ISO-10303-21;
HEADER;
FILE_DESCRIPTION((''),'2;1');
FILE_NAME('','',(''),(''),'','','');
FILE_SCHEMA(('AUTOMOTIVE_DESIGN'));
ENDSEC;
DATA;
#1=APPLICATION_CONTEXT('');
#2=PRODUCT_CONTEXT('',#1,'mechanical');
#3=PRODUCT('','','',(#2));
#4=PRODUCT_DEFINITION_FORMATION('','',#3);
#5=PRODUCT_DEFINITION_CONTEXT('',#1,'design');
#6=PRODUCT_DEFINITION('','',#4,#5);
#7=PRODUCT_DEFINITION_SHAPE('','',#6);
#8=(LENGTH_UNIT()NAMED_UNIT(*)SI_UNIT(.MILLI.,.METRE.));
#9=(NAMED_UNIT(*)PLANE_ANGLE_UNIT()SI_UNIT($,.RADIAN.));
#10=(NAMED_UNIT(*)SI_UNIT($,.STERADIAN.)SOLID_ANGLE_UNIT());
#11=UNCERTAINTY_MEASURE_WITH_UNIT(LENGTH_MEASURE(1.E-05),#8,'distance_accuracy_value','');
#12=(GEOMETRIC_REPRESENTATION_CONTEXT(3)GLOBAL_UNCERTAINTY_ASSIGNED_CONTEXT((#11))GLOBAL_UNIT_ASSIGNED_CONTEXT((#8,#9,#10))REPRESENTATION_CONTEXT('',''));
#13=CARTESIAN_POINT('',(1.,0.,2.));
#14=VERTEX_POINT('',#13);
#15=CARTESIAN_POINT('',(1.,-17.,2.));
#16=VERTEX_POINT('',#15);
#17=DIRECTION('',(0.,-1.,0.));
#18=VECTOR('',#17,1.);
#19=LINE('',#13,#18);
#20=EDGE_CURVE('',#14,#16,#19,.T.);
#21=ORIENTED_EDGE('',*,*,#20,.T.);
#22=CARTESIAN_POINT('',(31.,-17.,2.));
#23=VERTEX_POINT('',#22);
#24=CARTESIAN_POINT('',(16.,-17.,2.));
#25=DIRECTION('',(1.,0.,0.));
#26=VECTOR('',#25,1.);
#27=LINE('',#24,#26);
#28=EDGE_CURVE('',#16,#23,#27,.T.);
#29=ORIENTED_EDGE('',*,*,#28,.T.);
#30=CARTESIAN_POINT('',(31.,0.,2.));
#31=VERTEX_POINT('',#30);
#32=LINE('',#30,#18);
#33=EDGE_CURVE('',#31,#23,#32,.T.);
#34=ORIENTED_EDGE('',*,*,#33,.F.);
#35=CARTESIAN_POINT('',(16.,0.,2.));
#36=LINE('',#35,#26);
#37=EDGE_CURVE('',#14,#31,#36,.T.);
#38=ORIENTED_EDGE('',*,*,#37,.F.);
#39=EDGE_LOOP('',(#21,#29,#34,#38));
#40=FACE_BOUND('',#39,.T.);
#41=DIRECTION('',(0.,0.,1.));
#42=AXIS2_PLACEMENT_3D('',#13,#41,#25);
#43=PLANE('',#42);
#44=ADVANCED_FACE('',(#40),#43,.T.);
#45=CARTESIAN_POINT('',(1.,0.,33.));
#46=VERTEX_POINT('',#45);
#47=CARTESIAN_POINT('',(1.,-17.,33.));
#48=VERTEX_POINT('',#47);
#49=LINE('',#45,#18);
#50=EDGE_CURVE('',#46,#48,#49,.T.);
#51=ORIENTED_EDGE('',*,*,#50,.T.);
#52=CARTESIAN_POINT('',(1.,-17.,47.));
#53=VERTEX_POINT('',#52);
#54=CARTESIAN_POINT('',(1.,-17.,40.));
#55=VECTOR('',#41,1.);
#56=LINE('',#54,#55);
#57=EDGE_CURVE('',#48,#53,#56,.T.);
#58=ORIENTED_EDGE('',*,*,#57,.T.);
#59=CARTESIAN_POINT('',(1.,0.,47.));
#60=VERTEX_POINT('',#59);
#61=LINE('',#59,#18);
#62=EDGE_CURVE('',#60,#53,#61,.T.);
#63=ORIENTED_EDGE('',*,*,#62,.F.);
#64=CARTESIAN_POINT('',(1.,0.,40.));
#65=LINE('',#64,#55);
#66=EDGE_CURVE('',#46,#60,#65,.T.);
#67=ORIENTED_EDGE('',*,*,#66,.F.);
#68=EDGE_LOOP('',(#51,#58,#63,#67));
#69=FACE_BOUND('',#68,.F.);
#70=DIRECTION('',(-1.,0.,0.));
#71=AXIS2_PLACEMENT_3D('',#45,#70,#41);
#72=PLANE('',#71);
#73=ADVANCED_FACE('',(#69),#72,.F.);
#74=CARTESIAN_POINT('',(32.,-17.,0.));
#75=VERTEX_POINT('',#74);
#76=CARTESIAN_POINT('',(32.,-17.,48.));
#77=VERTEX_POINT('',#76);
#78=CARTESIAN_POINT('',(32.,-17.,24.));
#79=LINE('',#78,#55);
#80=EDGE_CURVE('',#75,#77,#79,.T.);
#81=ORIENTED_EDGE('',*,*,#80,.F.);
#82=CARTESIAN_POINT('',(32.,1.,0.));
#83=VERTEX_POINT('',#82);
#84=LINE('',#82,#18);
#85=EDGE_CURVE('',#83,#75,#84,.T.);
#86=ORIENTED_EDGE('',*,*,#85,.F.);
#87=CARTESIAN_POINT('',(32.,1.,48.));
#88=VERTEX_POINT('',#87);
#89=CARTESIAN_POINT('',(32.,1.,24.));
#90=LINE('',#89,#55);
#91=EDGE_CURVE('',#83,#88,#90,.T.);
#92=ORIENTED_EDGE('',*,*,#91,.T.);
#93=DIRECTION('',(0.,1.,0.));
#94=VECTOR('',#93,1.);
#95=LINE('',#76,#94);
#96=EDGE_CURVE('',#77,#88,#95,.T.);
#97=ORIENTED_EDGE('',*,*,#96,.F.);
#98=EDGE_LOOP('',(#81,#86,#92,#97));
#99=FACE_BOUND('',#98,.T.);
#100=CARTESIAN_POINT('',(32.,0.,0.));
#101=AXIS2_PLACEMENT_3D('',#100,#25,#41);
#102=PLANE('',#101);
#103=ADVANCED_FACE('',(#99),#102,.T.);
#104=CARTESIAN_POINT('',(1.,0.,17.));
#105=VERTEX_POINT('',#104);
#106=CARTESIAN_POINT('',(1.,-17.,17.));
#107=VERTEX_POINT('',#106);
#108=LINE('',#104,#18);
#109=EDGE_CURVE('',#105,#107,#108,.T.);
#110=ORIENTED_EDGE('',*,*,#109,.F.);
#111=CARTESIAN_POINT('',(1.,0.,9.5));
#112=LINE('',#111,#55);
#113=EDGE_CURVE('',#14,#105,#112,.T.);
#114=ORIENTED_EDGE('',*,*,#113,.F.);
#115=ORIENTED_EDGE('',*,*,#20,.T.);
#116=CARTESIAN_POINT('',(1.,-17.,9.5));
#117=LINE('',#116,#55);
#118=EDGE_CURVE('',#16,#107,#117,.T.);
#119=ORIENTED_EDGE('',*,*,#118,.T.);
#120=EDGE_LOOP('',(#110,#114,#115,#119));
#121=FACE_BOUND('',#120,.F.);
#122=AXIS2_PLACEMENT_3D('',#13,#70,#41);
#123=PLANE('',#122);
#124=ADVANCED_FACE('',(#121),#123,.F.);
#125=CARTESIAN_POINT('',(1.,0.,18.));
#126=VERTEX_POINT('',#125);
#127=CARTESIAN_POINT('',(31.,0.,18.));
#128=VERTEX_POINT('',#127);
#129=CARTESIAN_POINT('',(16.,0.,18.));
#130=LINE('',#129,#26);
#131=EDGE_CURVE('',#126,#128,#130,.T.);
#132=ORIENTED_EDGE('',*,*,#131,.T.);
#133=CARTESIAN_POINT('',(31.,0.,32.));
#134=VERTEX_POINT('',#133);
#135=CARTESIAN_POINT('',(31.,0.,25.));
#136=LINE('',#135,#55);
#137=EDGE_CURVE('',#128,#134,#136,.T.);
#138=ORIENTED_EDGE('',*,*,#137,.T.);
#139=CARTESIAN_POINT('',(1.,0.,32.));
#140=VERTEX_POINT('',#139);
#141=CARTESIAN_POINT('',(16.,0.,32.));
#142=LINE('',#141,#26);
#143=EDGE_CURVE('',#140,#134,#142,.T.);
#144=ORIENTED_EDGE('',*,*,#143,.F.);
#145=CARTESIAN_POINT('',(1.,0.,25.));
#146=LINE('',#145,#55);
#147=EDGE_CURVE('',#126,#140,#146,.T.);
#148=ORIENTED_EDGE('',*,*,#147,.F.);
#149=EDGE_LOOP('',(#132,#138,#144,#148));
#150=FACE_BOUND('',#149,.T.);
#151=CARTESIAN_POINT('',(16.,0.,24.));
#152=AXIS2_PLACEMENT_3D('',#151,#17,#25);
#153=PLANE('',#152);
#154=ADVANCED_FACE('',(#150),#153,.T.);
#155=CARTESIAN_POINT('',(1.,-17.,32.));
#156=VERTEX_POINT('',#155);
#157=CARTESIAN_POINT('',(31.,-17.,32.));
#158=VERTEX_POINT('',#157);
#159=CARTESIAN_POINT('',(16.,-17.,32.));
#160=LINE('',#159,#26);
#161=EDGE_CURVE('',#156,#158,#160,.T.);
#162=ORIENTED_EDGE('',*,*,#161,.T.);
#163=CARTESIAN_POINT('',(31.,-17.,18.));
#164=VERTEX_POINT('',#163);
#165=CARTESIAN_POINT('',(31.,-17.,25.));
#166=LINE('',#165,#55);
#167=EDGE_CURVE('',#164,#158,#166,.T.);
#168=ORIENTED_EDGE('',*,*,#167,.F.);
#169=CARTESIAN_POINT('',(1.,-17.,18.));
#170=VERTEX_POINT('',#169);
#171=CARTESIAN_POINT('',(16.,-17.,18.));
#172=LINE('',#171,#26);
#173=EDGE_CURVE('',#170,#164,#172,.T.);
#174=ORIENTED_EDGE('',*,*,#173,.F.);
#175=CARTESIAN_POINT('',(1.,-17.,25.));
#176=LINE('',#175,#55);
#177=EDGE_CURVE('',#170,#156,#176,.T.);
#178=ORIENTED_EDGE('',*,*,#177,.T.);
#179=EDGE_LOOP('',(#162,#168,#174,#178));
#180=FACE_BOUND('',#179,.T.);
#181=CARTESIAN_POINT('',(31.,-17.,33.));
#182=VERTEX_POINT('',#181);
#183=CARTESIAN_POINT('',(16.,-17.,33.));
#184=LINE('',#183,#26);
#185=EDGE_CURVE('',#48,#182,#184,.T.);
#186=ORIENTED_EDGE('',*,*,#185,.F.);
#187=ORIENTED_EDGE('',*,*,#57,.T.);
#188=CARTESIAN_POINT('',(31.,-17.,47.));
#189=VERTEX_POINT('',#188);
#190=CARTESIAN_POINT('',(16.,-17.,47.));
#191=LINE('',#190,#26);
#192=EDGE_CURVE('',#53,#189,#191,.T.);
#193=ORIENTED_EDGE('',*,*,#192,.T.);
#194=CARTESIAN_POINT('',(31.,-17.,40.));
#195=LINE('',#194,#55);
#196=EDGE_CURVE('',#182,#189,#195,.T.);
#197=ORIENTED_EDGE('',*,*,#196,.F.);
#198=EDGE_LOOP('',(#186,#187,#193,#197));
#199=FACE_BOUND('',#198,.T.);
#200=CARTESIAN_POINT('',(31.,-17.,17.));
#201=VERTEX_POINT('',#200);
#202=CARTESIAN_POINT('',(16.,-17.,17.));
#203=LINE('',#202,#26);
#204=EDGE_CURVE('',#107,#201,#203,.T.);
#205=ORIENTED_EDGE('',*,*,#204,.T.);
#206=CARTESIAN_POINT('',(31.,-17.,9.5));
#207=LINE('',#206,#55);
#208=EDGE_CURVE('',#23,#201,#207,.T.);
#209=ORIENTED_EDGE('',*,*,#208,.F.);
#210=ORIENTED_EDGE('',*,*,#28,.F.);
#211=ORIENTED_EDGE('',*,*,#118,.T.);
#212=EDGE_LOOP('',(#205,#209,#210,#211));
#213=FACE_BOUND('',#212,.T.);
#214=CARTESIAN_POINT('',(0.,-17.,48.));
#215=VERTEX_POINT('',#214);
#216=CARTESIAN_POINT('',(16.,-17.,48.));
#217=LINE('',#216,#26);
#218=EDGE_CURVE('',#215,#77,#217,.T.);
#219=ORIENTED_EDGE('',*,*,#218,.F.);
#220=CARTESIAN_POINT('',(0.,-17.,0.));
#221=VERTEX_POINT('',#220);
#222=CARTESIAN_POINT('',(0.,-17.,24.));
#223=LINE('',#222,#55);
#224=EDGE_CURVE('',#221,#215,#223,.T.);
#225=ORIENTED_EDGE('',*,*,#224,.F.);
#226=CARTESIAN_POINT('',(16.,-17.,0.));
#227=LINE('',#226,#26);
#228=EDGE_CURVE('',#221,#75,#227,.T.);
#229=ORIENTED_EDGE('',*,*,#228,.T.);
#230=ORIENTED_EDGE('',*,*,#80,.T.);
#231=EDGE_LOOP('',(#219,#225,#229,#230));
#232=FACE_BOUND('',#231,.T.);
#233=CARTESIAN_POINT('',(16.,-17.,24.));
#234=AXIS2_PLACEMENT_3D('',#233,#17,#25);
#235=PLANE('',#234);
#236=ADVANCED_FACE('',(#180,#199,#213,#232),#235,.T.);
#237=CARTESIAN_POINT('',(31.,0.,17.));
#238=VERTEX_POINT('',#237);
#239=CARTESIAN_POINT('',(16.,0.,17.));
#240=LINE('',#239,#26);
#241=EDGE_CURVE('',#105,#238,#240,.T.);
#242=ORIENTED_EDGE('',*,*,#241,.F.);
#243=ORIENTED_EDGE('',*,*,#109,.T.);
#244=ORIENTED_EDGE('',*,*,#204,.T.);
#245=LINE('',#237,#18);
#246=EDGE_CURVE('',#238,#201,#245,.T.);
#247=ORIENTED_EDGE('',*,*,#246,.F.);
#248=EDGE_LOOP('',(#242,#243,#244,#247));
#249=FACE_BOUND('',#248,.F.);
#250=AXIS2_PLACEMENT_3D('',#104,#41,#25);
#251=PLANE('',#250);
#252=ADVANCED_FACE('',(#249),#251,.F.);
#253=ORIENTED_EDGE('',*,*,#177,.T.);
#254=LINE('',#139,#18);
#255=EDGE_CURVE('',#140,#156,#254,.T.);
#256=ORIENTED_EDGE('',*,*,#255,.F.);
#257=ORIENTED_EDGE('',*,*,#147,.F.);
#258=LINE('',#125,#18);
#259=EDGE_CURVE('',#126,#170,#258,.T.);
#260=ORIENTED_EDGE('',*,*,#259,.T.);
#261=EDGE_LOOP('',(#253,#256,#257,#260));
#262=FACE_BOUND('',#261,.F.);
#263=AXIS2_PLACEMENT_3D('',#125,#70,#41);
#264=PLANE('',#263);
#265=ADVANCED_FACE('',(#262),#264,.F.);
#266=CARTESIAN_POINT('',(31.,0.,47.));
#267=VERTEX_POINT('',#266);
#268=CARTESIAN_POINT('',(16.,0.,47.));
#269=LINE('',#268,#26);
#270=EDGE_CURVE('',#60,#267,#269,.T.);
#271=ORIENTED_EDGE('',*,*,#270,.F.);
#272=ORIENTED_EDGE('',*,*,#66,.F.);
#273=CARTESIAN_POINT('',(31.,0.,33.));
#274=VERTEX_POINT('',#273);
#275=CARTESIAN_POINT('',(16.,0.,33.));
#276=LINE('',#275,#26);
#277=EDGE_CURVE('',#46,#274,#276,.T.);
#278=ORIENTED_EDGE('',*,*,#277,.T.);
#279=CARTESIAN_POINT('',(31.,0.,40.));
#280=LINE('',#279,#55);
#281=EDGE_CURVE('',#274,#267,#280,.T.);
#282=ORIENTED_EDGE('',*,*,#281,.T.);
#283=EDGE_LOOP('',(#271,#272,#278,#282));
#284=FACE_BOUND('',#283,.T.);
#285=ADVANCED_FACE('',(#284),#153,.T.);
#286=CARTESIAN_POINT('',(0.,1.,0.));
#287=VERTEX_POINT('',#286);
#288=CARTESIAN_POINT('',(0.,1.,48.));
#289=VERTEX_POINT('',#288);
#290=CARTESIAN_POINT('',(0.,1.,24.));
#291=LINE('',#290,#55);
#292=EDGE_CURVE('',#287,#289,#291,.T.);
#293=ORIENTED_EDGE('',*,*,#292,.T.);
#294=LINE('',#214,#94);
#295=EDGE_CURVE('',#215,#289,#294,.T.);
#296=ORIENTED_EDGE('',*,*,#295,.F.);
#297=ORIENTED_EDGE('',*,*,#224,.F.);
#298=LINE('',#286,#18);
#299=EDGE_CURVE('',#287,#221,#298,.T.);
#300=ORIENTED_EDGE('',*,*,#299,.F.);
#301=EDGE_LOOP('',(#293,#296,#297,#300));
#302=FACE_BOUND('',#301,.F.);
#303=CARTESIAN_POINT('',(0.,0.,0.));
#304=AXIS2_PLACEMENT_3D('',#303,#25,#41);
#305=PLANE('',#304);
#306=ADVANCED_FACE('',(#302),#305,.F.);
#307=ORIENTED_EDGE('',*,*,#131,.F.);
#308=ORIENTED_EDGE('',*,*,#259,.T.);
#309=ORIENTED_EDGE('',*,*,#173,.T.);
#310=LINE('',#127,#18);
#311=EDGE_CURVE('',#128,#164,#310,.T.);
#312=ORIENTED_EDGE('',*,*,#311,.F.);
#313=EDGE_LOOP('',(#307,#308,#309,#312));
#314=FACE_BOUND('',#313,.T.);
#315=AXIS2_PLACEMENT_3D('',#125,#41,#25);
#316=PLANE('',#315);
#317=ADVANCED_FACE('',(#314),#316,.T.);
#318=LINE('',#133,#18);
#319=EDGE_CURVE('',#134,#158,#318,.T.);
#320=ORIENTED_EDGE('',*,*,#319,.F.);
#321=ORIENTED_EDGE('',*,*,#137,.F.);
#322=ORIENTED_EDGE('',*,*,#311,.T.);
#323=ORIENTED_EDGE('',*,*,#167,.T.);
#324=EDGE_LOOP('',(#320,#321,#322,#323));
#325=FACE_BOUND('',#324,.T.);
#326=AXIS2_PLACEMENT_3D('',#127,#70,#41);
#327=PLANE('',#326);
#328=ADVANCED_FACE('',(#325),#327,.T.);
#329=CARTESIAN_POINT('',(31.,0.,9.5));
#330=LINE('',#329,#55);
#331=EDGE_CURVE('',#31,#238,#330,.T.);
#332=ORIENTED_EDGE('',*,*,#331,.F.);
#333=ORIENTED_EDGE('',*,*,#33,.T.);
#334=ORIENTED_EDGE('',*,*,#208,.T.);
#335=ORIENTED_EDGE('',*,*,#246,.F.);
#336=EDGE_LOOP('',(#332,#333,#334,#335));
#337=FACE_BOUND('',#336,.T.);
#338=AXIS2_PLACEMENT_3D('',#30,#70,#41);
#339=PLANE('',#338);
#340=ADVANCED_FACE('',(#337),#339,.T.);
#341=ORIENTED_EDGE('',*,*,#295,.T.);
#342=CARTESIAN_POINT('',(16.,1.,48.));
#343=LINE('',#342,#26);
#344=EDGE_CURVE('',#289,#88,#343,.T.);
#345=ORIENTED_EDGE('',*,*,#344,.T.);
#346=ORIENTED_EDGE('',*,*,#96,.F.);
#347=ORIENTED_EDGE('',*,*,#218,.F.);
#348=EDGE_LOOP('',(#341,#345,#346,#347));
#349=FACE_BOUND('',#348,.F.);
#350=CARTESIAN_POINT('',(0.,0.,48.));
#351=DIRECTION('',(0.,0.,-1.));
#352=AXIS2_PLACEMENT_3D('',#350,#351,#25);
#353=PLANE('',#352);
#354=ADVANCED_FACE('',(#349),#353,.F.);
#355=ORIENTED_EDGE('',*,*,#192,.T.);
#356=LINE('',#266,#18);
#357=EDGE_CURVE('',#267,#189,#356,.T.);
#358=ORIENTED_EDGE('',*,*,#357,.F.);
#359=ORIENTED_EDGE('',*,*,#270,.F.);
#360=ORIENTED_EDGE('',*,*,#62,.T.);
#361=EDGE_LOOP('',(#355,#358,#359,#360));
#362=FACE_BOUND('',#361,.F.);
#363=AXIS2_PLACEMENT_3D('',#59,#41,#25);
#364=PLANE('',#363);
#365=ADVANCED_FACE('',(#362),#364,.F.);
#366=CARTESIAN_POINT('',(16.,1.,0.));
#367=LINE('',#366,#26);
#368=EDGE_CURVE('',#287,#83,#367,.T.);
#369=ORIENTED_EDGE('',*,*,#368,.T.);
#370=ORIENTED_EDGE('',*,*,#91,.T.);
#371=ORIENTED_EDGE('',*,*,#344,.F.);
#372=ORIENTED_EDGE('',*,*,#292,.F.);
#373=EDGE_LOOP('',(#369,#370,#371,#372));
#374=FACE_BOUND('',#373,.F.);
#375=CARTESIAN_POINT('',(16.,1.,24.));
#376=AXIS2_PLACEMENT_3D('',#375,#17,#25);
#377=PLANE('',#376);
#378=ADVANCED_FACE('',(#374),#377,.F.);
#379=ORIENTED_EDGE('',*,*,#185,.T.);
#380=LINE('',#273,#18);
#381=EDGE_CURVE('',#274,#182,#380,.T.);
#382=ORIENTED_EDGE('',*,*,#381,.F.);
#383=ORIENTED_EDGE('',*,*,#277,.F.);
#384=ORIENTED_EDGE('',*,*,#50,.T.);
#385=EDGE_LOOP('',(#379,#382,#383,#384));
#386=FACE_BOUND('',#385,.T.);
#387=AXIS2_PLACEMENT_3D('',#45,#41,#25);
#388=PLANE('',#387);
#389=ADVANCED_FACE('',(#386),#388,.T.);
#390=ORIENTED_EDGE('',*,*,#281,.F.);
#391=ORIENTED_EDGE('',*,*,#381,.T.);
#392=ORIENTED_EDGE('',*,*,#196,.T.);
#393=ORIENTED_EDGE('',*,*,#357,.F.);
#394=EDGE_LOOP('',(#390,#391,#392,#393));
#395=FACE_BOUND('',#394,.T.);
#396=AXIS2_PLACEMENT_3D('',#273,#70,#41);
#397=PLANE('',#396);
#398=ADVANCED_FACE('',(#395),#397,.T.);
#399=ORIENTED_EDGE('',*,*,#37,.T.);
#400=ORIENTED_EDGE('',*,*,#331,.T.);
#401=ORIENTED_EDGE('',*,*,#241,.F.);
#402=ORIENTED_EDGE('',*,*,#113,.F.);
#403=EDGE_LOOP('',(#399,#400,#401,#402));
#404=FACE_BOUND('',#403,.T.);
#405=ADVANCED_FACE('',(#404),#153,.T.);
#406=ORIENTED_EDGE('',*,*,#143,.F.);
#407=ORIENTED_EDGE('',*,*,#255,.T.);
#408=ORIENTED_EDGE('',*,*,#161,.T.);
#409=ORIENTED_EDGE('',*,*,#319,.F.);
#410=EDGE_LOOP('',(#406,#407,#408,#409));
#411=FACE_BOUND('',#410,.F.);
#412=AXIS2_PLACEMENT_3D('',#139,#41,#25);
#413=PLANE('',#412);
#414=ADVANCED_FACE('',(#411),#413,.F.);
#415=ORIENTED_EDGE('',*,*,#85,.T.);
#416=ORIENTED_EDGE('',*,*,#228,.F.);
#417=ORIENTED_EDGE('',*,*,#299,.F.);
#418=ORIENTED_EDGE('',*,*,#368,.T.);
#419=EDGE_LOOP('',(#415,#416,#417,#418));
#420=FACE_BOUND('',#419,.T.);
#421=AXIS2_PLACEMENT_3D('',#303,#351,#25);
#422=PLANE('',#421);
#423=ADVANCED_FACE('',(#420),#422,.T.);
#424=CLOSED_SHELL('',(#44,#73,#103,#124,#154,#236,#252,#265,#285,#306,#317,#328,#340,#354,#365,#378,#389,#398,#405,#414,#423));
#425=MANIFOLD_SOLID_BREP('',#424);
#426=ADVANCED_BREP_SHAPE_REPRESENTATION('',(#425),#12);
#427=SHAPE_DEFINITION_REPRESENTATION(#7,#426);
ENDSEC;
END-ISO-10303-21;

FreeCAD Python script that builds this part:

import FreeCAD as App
import Part
import Sketcher


def add_polygon(sketch, points):
    """Adds a closed chain of lines whose ends are joined by coincident constraints."""
    first, n = sketch.GeometryCount, len(points)
    for a, b in zip(points, points[1:] + points[:1]):
        sketch.addGeometry(Part.LineSegment(App.Vector(*a, 0), App.Vector(*b, 0)), False)
    for i in range(n):
        sketch.addConstraint(Sketcher.Constraint("Coincident", first + i, 2, first + (i + 1) % n, 1))

doc = App.newDocument("Part")
body = doc.addObject("PartDesign::Body", "Body")

sketch1 = body.newObject("Sketcher::SketchObject", "Sketch")
sketch1.AttachmentSupport = (doc.getObject("XZ_Plane"), [""])
sketch1.MapMode = "FlatFace"
add_polygon(sketch1, [(0, 48), (0, 0), (32, 0), (32, 48)])
add_polygon(sketch1, [(31, 2), (1, 2), (1, 17), (31, 17)])
add_polygon(sketch1, [(31, 18), (1, 18), (1, 32), (31, 32)])
add_polygon(sketch1, [(31, 33), (1, 33), (1, 47), (31, 47)])
sketch1.addConstraint([
    Sketcher.Constraint("Vertical", 0),
    Sketcher.Constraint("Horizontal", 1),
    Sketcher.Constraint("Vertical", 2),
    Sketcher.Constraint("Horizontal", 3),
    Sketcher.Constraint("Horizontal", 4),
    Sketcher.Constraint("Vertical", 5),
    Sketcher.Constraint("Horizontal", 6),
    Sketcher.Constraint("Vertical", 7),
    Sketcher.Constraint("Horizontal", 8),
    Sketcher.Constraint("Vertical", 9),
    Sketcher.Constraint("Horizontal", 10),
    Sketcher.Constraint("Vertical", 11),
    Sketcher.Constraint("Horizontal", 12),
    Sketcher.Constraint("Vertical", 13),
    Sketcher.Constraint("Horizontal", 14),
    Sketcher.Constraint("Vertical", 15),
    Sketcher.Constraint("Coincident", 0, 2, -1, 1),
    Sketcher.Constraint("Vertical", 5, 2, 8, 2),
    Sketcher.Constraint("Vertical", 7, 2, 10, 2),
    Sketcher.Constraint("Vertical", 9, 2, 12, 2),
    Sketcher.Constraint("Vertical", 11, 2, 14, 2),
    Sketcher.Constraint("Equal", 11, 13),
    Sketcher.Constraint("DistanceX", 1, 1, 1, 2, 32.0),
    Sketcher.Constraint("DistanceX", 4, 2, 4, 1, 30.0),
    Sketcher.Constraint("DistanceY", 0, 2, 0, 1, 48.0),
    Sketcher.Constraint("DistanceY", 5, 1, 5, 2, 15.0),
    Sketcher.Constraint("DistanceY", 9, 1, 9, 2, 14.0),
    Sketcher.Constraint("DistanceX", -1, 1, 4, 2, 1.0),
    Sketcher.Constraint("DistanceY", -1, 1, 4, 2, 2.0),
    Sketcher.Constraint("DistanceY", -1, 1, 8, 2, 18.0),
    Sketcher.Constraint("DistanceY", -1, 1, 12, 2, 33.0),
])
pad1 = body.newObject("PartDesign::Pad", "Pad")
pad1.Profile = sketch1
pad1.Length = 17

sketch2 = body.newObject("Sketcher::SketchObject", "Sketch001")
sketch2.AttachmentSupport = (doc.getObject("XZ_Plane"), [""])
sketch2.MapMode = "FlatFace"
add_polygon(sketch2, [(0, 48), (0, 0), (32, 0), (32, 48)])
sketch2.addConstraint([
    Sketcher.Constraint("Vertical", 0),
    Sketcher.Constraint("Horizontal", 1),
    Sketcher.Constraint("Vertical", 2),
    Sketcher.Constraint("Horizontal", 3),
    Sketcher.Constraint("Coincident", 0, 2, -1, 1),
    Sketcher.Constraint("DistanceX", 1, 1, 1, 2, 32.0),
    Sketcher.Constraint("DistanceY", 0, 2, 0, 1, 48.0),
])
pad2 = body.newObject("PartDesign::Pad", "Pad001")
pad2.Profile = sketch2
pad2.Length = 1
pad2.Reversed = True

doc.recompute()
